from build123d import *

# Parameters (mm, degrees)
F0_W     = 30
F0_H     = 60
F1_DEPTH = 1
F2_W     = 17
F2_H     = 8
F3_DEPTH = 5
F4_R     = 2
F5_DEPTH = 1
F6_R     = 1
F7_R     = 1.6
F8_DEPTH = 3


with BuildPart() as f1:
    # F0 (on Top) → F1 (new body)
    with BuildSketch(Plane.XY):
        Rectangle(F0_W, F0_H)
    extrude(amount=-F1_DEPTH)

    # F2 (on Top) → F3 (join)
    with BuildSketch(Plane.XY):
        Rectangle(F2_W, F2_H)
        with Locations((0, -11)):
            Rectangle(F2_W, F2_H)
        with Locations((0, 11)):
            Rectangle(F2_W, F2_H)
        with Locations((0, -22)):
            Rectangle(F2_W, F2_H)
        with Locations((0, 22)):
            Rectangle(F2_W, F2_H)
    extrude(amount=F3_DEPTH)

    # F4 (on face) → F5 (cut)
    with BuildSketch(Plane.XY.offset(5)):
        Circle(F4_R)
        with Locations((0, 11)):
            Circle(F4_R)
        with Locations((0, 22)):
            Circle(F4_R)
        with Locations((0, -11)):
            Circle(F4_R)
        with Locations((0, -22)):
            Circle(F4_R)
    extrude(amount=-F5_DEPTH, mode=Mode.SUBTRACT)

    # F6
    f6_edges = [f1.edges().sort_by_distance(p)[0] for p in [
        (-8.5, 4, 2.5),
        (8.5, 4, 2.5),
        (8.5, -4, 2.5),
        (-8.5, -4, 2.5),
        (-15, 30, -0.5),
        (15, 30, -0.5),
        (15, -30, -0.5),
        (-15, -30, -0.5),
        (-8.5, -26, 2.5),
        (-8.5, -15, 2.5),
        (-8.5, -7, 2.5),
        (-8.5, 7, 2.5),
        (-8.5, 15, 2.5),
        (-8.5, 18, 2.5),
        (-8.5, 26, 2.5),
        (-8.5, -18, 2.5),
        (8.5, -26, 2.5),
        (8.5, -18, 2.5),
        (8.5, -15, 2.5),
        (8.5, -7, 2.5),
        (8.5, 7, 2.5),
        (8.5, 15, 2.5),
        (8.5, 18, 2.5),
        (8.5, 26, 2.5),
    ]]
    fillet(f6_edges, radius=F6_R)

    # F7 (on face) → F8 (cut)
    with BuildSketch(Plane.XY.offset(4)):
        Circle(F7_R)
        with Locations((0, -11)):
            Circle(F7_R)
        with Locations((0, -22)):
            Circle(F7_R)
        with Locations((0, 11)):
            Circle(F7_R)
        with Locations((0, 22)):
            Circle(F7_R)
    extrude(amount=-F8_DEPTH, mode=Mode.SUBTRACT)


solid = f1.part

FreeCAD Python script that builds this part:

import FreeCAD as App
import Part
import Sketcher


def edges_at(feature, points):
    """Names of the edges that pass closest to the given points."""
    edges = feature.Shape.Edges
    near = lambda p: min(range(len(edges)), key=lambda i: edges[i].distToShape(Part.Vertex(*p))[0])
    return sorted({f"Edge{near(p) + 1}" for p in points})

doc = App.newDocument("Part")
params = doc.addObject("Spreadsheet::Sheet", "Params")
for row, (alias, value) in enumerate([
    ("sketch1_width", "30 mm"),
    ("sketch1_height", "60 mm"),
    ("pad1_length", "1 mm"),
    ("sketch2_width", "17 mm"),
    ("sketch2_height", "8 mm"),
    ("pad2_length", "5 mm"),
    ("sketch3_diameter", "4 mm"),
    ("pocket1_length", "1 mm"),
    ("fillet_radius", "1 mm"),
    ("sketch4_diameter", "3.2 mm"),
    ("pocket2_length", "3 mm"),
], start=1):
    params.set(f"A{row}", alias)
    params.set(f"B{row}", "=" + value)
    params.setAlias(f"B{row}", alias)

body = doc.addObject("PartDesign::Body", "Body")

# Sketch on XY plane
sketch1 = doc.addObject("Sketcher::SketchObject", "Sketch")
body.addObject(sketch1)
sketch1.AttachmentSupport = (doc.XY_Plane, [""])
sketch1.MapMode = "FlatFace"
sketch1.addGeometry(Part.LineSegment(App.Vector(-15, 30, 0), App.Vector(-15, -30, 0)), False)
sketch1.addGeometry(Part.LineSegment(App.Vector(-15, -30, 0), App.Vector(15, -30, 0)), False)
sketch1.addGeometry(Part.LineSegment(App.Vector(15, -30, 0), App.Vector(15, 30, 0)), False)
sketch1.addGeometry(Part.LineSegment(App.Vector(15, 30, 0), App.Vector(-15, 30, 0)), False)
sketch1.addConstraint(Sketcher.Constraint("Coincident", 0, 2, 1, 1))
sketch1.addConstraint(Sketcher.Constraint("Coincident", 1, 2, 2, 1))
sketch1.addConstraint(Sketcher.Constraint("Coincident", 2, 2, 3, 1))
sketch1.addConstraint(Sketcher.Constraint("Coincident", 3, 2, 0, 1))
sketch1.addConstraint(Sketcher.Constraint("Vertical", 0))
sketch1.addConstraint(Sketcher.Constraint("Horizontal", 1))
sketch1.addConstraint(Sketcher.Constraint("Vertical", 2))
sketch1.addConstraint(Sketcher.Constraint("Horizontal", 3))
sketch1.addConstraint(Sketcher.Constraint("Symmetric", 0, 2, 2, 2, -1, 1))
sketch1.addConstraint(Sketcher.Constraint("DistanceX", 1, 1, 1, 2, 30.0))
sketch1.addConstraint(Sketcher.Constraint("DistanceY", 0, 2, 0, 1, 60.0))
sketch1.setExpression("Constraints[9]", "Params.sketch1_width")
sketch1.setExpression("Constraints[10]", "Params.sketch1_height")
pad1 = doc.addObject("PartDesign::Pad", "Pad")
body.addObject(pad1)
pad1.Profile = sketch1
pad1.setExpression("Length", "Params.pad1_length")
pad1.Reversed = True

# Sketch on XY plane
sketch2 = doc.addObject("Sketcher::SketchObject", "Sketch001")
body.addObject(sketch2)
sketch2.AttachmentSupport = (doc.XY_Plane, [""])
sketch2.MapMode = "FlatFace"
sketch2.addGeometry(Part.LineSegment(App.Vector(-8, 4, 0), App.Vector(-8, -4, 0)), False)
sketch2.addGeometry(Part.LineSegment(App.Vector(-8, -4, 0), App.Vector(8, -4, 0)), False)
sketch2.addGeometry(Part.LineSegment(App.Vector(8, -4, 0), App.Vector(8, 4, 0)), False)
sketch2.addGeometry(Part.LineSegment(App.Vector(8, 4, 0), App.Vector(-8, 4, 0)), False)
sketch2.addGeometry(Part.LineSegment(App.Vector(-8, -7, 0), App.Vector(-8, -15, 0)), False)
sketch2.addGeometry(Part.LineSegment(App.Vector(-8, -15, 0), App.Vector(8, -15, 0)), False)
sketch2.addGeometry(Part.LineSegment(App.Vector(8, -15, 0), App.Vector(8, -7, 0)), False)
sketch2.addGeometry(Part.LineSegment(App.Vector(8, -7, 0), App.Vector(-8, -7, 0)), False)
sketch2.addGeometry(Part.LineSegment(App.Vector(-8, 15, 0), App.Vector(-8, 7, 0)), False)
sketch2.addGeometry(Part.LineSegment(App.Vector(-8, 7, 0), App.Vector(8, 7, 0)), False)
sketch2.addGeometry(Part.LineSegment(App.Vector(8, 7, 0), App.Vector(8, 15, 0)), False)
sketch2.addGeometry(Part.LineSegment(App.Vector(8, 15, 0), App.Vector(-8, 15, 0)), False)
sketch2.addGeometry(Part.LineSegment(App.Vector(-8, -18, 0), App.Vector(-8, -26, 0)), False)
sketch2.addGeometry(Part.LineSegment(App.Vector(-8, -26, 0), App.Vector(8, -26, 0)), False)
sketch2.addGeometry(Part.LineSegment(App.Vector(8, -26, 0), App.Vector(8, -18, 0)), False)
sketch2.addGeometry(Part.LineSegment(App.Vector(8, -18, 0), App.Vector(-8, -18, 0)), False)
sketch2.addGeometry(Part.LineSegment(App.Vector(-8, 26, 0), App.Vector(-8, 18, 0)), False)
sketch2.addGeometry(Part.LineSegment(App.Vector(-8, 18, 0), App.Vector(8, 18, 0)), False)
sketch2.addGeometry(Part.LineSegment(App.Vector(8, 18, 0), App.Vector(8, 26, 0)), False)
sketch2.addGeometry(Part.LineSegment(App.Vector(8, 26, 0), App.Vector(-8, 26, 0)), False)
sketch2.addConstraint(Sketcher.Constraint("Coincident", 0, 2, 1, 1))
sketch2.addConstraint(Sketcher.Constraint("Coincident", 1, 2, 2, 1))
sketch2.addConstraint(Sketcher.Constraint("Coincident", 2, 2, 3, 1))
sketch2.addConstraint(Sketcher.Constraint("Coincident", 3, 2, 0, 1))
sketch2.addConstraint(Sketcher.Constraint("Coincident", 4, 2, 5, 1))
sketch2.addConstraint(Sketcher.Constraint("Coincident", 5, 2, 6, 1))
sketch2.addConstraint(Sketcher.Constraint("Coincident", 6, 2, 7, 1))
sketch2.addConstraint(Sketcher.Constraint("Coincident", 7, 2, 4, 1))
sketch2.addConstraint(Sketcher.Constraint("Coincident", 8, 2, 9, 1))
sketch2.addConstraint(Sketcher.Constraint("Coincident", 9, 2, 10, 1))
sketch2.addConstraint(Sketcher.Constraint("Coincident", 10, 2, 11, 1))
sketch2.addConstraint(Sketcher.Constraint("Coincident", 11, 2, 8, 1))
sketch2.addConstraint(Sketcher.Constraint("Coincident", 12, 2, 13, 1))
sketch2.addConstraint(Sketcher.Constraint("Coincident", 13, 2, 14, 1))
sketch2.addConstraint(Sketcher.Constraint("Coincident", 14, 2, 15, 1))
sketch2.addConstraint(Sketcher.Constraint("Coincident", 15, 2, 12, 1))
sketch2.addConstraint(Sketcher.Constraint("Coincident", 16, 2, 17, 1))
sketch2.addConstraint(Sketcher.Constraint("Coincident", 17, 2, 18, 1))
sketch2.addConstraint(Sketcher.Constraint("Coincident", 18, 2, 19, 1))
sketch2.addConstraint(Sketcher.Constraint("Coincident", 19, 2, 16, 1))
sketch2.addConstraint(Sketcher.Constraint("Vertical", 0))
sketch2.addConstraint(Sketcher.Constraint("Horizontal", 1))
sketch2.addConstraint(Sketcher.Constraint("Vertical", 2))
sketch2.addConstraint(Sketcher.Constraint("Horizontal", 3))
sketch2.addConstraint(Sketcher.Constraint("Vertical", 4))
sketch2.addConstraint(Sketcher.Constraint("Horizontal", 5))
sketch2.addConstraint(Sketcher.Constraint("Vertical", 6))
sketch2.addConstraint(Sketcher.Constraint("Horizontal", 7))
sketch2.addConstraint(Sketcher.Constraint("Vertical", 8))
sketch2.addConstraint(Sketcher.Constraint("Horizontal", 9))
sketch2.addConstraint(Sketcher.Constraint("Vertical", 10))
sketch2.addConstraint(Sketcher.Constraint("Horizontal", 11))
sketch2.addConstraint(Sketcher.Constraint("Vertical", 12))
sketch2.addConstraint(Sketcher.Constraint("Horizontal", 13))
sketch2.addConstraint(Sketcher.Constraint("Vertical", 14))
sketch2.addConstraint(Sketcher.Constraint("Horizontal", 15))
sketch2.addConstraint(Sketcher.Constraint("Vertical", 16))
sketch2.addConstraint(Sketcher.Constraint("Horizontal", 17))
sketch2.addConstraint(Sketcher.Constraint("Vertical", 18))
sketch2.addConstraint(Sketcher.Constraint("Horizontal", 19))
sketch2.addConstraint(Sketcher.Constraint("Symmetric", 0, 2, 2, 2, -1, 1))
sketch2.addConstraint(Sketcher.Constraint("Symmetric", 6, 2, 8, 2, -1, 1))
sketch2.addConstraint(Sketcher.Constraint("Symmetric", 4, 2, 10, 2, -1, 1))
sketch2.addConstraint(Sketcher.Constraint("Symmetric", 14, 2, 16, 2, -1, 1))
sketch2.addConstraint(Sketcher.Constraint("Symmetric", 12, 2, 18, 2, -1, 1))
sketch2.addConstraint(Sketcher.Constraint("Vertical", 3, 2, 4, 2))
sketch2.addConstraint(Sketcher.Constraint("Vertical", 2, 2, 5, 2))
sketch2.addConstraint(Sketcher.Constraint("Vertical", 11, 2, 12, 2))
sketch2.addConstraint(Sketcher.Constraint("Vertical", 10, 2, 13, 2))
sketch2.addConstraint(Sketcher.Constraint("Equal", 2, 4))
sketch2.addConstraint(Sketcher.Constraint("Equal", 10, 12))
sketch2.addConstraint(Sketcher.Constraint("DistanceX", 1, 1, 1, 2, 17.0))
sketch2.addConstraint(Sketcher.Constraint("DistanceY", 0, 2, 0, 1, 8.0))
sketch2.addConstraint(Sketcher.Constraint("DistanceY", 4, 2, -1, 1, 15.0))
sketch2.addConstraint(Sketcher.Constraint("DistanceY", 12, 2, -1, 1, 26.0))
sketch2.setExpression("Constraints[51]", "Params.sketch2_width")
sketch2.setExpression("Constraints[52]", "Params.sketch2_height")
pad2 = doc.addObject("PartDesign::Pad", "Pad001")
body.addObject(pad2)
pad2.Profile = sketch2
pad2.setExpression("Length", "Params.pad2_length")

# Sketch on XY plane
sketch3 = doc.addObject("Sketcher::SketchObject", "Sketch002")
body.addObject(sketch3)
sketch3.AttachmentSupport = (doc.XY_Plane, [""])
sketch3.MapMode = "FlatFace"
sketch3.AttachmentOffset = App.Placement(App.Vector(0, 0, 5), App.Rotation())
sketch3.addGeometry(Part.Circle(App.Vector(0, 0, 0), App.Vector(0, 0, 1), 2), False)
sketch3.addGeometry(Part.Circle(App.Vector(0, 11, 0), App.Vector(0, 0, 1), 2), False)
sketch3.addGeometry(Part.Circle(App.Vector(0, 22, 0), App.Vector(0, 0, 1), 2), False)
sketch3.addGeometry(Part.Circle(App.Vector(0, -11, 0), App.Vector(0, 0, 1), 2), False)
sketch3.addGeometry(Part.Circle(App.Vector(0, -22, 0), App.Vector(0, 0, 1), 2), False)
sketch3.addConstraint(Sketcher.Constraint("Coincident", 0, 3, -1, 1))
sketch3.addConstraint(Sketcher.Constraint("Equal", 0, 1))
sketch3.addConstraint(Sketcher.Constraint("Equal", 1, 2))
sketch3.addConstraint(Sketcher.Constraint("Equal", 2, 3))
sketch3.addConstraint(Sketcher.Constraint("Equal", 3, 4))
sketch3.addConstraint(Sketcher.Constraint("Symmetric", 1, 3, 3, 3, -1, 1))
sketch3.addConstraint(Sketcher.Constraint("Symmetric", 2, 3, 4, 3, -1, 1))
sketch3.addConstraint(Sketcher.Constraint("PointOnObject", 1, 3, -2))
sketch3.addConstraint(Sketcher.Constraint("PointOnObject", 2, 3, -2))
sketch3.addConstraint(Sketcher.Constraint("Diameter", 0, 4.0))
sketch3.addConstraint(Sketcher.Constraint("DistanceY", -1, 1, 1, 3, 11.0))
sketch3.addConstraint(Sketcher.Constraint("DistanceY", -1, 1, 2, 3, 22.0))
sketch3.setExpression("Constraints[9]", "Params.sketch3_diameter")
pocket1 = doc.addObject("PartDesign::Pocket", "Pocket")
body.addObject(pocket1)
pocket1.Profile = sketch3
pocket1.setExpression("Length", "Params.pocket1_length")
doc.recompute()

fillet = doc.addObject("PartDesign::Fillet", "Fillet")
body.addObject(fillet)
fillet.Base = (pocket1, edges_at(pocket1, [
    (-8.5, 4, 2.5),
    (8.5, 4, 2.5),
    (8.5, -4, 2.5),
    (-8.5, -4, 2.5),
    (-15, 30, -0.5),
    (15, 30, -0.5),
    (15, -30, -0.5),
    (-15, -30, -0.5),
    (-8.5, -26, 2.5),
    (-8.5, -15, 2.5),
    (-8.5, -7, 2.5),
    (-8.5, 7, 2.5),
    (-8.5, 15, 2.5),
    (-8.5, 18, 2.5),
    (-8.5, 26, 2.5),
    (-8.5, -18, 2.5),
    (8.5, -26, 2.5),
    (8.5, -18, 2.5),
    (8.5, -15, 2.5),
    (8.5, -7, 2.5),
    (8.5, 7, 2.5),
    (8.5, 15, 2.5),
    (8.5, 18, 2.5),
    (8.5, 26, 2.5),
]))
fillet.setExpression("Radius", "Params.fillet_radius")

# Sketch on XY plane
sketch4 = doc.addObject("Sketcher::SketchObject", "Sketch003")
body.addObject(sketch4)
sketch4.AttachmentSupport = (doc.XY_Plane, [""])
sketch4.MapMode = "FlatFace"
sketch4.AttachmentOffset = App.Placement(App.Vector(0, 0, 4), App.Rotation())
sketch4.addGeometry(Part.Circle(App.Vector(0, 0, 0), App.Vector(0, 0, 1), 1.6), False)
sketch4.addGeometry(Part.Circle(App.Vector(0, -11, 0), App.Vector(0, 0, 1), 1.6), False)
sketch4.addGeometry(Part.Circle(App.Vector(0, -22, 0), App.Vector(0, 0, 1), 1.6), False)
sketch4.addGeometry(Part.Circle(App.Vector(0, 11, 0), App.Vector(0, 0, 1), 1.6), False)
sketch4.addGeometry(Part.Circle(App.Vector(0, 22, 0), App.Vector(0, 0, 1), 1.6), False)
sketch4.addConstraint(Sketcher.Constraint("Coincident", 0, 3, -1, 1))
sketch4.addConstraint(Sketcher.Constraint("Equal", 0, 1))
sketch4.addConstraint(Sketcher.Constraint("Equal", 1, 2))
sketch4.addConstraint(Sketcher.Constraint("Equal", 2, 3))
sketch4.addConstraint(Sketcher.Constraint("Equal", 3, 4))
sketch4.addConstraint(Sketcher.Constraint("Symmetric", 1, 3, 3, 3, -1, 1))
sketch4.addConstraint(Sketcher.Constraint("Symmetric", 2, 3, 4, 3, -1, 1))
sketch4.addConstraint(Sketcher.Constraint("PointOnObject", 1, 3, -2))
sketch4.addConstraint(Sketcher.Constraint("PointOnObject", 2, 3, -2))
sketch4.addConstraint(Sketcher.Constraint("Diameter", 0, 3.2))
sketch4.addConstraint(Sketcher.Constraint("DistanceY", 1, 3, -1, 1, 11.0))
sketch4.addConstraint(Sketcher.Constraint("DistanceY", 2, 3, -1, 1, 22.0))
sketch4.setExpression("Constraints[9]", "Params.sketch4_diameter")
pocket2 = doc.addObject("PartDesign::Pocket", "Pocket001")
body.addObject(pocket2)
pocket2.Profile = sketch4
pocket2.setExpression("Length", "Params.pocket2_length")

doc.recompute()
